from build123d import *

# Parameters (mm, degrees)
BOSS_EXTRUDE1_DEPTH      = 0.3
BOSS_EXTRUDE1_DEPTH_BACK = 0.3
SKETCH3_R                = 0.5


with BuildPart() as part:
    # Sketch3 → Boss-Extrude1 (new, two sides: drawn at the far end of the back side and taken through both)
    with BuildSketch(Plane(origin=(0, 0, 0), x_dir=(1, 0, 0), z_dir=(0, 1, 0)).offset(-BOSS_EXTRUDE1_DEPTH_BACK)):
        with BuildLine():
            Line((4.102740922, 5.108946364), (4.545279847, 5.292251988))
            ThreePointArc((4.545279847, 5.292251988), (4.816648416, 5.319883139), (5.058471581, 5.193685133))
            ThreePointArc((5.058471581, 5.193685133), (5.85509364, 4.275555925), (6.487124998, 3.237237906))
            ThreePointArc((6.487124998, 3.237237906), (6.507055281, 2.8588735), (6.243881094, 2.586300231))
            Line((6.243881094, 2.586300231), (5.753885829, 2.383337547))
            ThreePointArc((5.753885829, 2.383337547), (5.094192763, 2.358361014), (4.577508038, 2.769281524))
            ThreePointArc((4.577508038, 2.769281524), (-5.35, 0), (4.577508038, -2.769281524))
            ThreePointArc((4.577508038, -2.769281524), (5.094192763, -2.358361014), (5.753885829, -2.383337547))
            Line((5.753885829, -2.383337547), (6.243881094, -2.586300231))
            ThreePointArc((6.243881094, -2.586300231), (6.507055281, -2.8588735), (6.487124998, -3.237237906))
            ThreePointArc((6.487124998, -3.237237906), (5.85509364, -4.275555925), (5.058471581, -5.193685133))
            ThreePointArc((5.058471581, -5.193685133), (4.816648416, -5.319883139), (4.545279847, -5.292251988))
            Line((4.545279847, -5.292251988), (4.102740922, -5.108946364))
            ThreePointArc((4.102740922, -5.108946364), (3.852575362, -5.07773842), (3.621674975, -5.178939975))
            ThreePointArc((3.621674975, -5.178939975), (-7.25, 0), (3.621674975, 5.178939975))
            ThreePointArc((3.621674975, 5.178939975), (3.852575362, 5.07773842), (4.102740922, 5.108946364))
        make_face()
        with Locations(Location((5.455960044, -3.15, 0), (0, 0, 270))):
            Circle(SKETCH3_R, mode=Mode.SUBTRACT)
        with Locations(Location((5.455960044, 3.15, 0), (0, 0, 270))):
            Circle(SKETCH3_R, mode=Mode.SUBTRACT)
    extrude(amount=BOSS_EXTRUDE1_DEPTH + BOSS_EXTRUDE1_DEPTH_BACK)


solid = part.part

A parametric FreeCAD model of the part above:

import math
import FreeCAD as App
import Part
import Sketcher
Q = App.Units.Quantity

doc = App.newDocument("Part")
body = doc.addObject("PartDesign::Body", "Body")

# Sketch on XZ plane
sketch1 = body.newObject("Sketcher::SketchObject", "Sketch")
sketch1.AttachmentSupport = (doc.getObject("XZ_Plane"), [""])
sketch1.MapMode = "FlatFace"
sketch1.addGeometry([
    Part.LineSegment(App.Vector(4.55, -5.29, 0), App.Vector(4.1, -5.11, 0)),  # 0
    Part.ArcOfCircle(Part.Circle(App.Vector(3.92, -5.55, 0), App.Vector(0, 0, 1), 0.47), math.radians(67), math.radians(129)),  # 1
    Part.ArcOfCircle(Part.Circle(App.Vector(-0.58, 0, 0), App.Vector(0, 0, 1), 6.67), math.radians(51), math.radians(309)),  # 2
    Part.ArcOfCircle(Part.Circle(App.Vector(3.92, 5.55, 0), App.Vector(0, 0, 1), 0.47), math.radians(-129), math.radians(-67)),  # 3
    Part.LineSegment(App.Vector(4.1, 5.11, 0), App.Vector(4.55, 5.29, 0)),  # 4
    Part.ArcOfCircle(Part.Circle(App.Vector(4.73, 4.85, 0), App.Vector(0, 0, 1), 0.47), math.radians(46), math.radians(113)),  # 5
    Part.ArcOfCircle(Part.Circle(App.Vector(0, 0, 0), App.Vector(0, 0, 1), 7.25), math.radians(26.52), math.radians(45.76)),  # 6
    Part.ArcOfCircle(Part.Circle(App.Vector(6.06, 3.03, 0), App.Vector(0, 0, 1), 0.48), math.radians(-67), math.radians(27)),  # 7
    Part.LineSegment(App.Vector(6.24, 2.59, 0), App.Vector(5.75, 2.38, 0)),  # 8
    Part.ArcOfCircle(Part.Circle(App.Vector(5.39, 3.26, 0), App.Vector(0, 0, 1), 0.95), math.radians(-149), math.radians(-67)),  # 9
    Part.ArcOfCircle(Part.Circle(App.Vector(0, 0, 0), App.Vector(0, 0, 1), 5.35), math.radians(31), math.radians(329)),  # 10
    Part.ArcOfCircle(Part.Circle(App.Vector(5.39, -3.26, 0), App.Vector(0, 0, 1), 0.95), math.radians(67), math.radians(149)),  # 11
    Part.LineSegment(App.Vector(5.75, -2.38, 0), App.Vector(6.24, -2.59, 0)),  # 12
    Part.ArcOfCircle(Part.Circle(App.Vector(6.06, -3.03, 0), App.Vector(0, 0, 1), 0.48), math.radians(-27), math.radians(67)),  # 13
    Part.ArcOfCircle(Part.Circle(App.Vector(0, 0, 0), App.Vector(0, 0, 1), 7.25), math.radians(-45.76), math.radians(-26.52)),  # 14
    Part.ArcOfCircle(Part.Circle(App.Vector(4.73, -4.85, 0), App.Vector(0, 0, 1), 0.47), math.radians(-113), math.radians(-46)),  # 15
    Part.Circle(App.Vector(5.46, 3.15, 0), App.Vector(0, 0, 1), 0.5),  # 16
    Part.Circle(App.Vector(5.46, -3.15, 0), App.Vector(0, 0, 1), 0.5),  # 17
], False)
sketch1.addConstraint([
    Sketcher.Constraint("Tangent", 0, 2, 1, 1),
    Sketcher.Constraint("Tangent", 1, 2, 2, 2),
    Sketcher.Constraint("Tangent", 2, 1, 3, 1),
    Sketcher.Constraint("Tangent", 3, 2, 4, 1),
    Sketcher.Constraint("Tangent", 4, 2, 5, 2),
    Sketcher.Constraint("Tangent", 5, 1, 6, 2),
    Sketcher.Constraint("Tangent", 6, 1, 7, 2),
    Sketcher.Constraint("Tangent", 7, 1, 8, 1),
    Sketcher.Constraint("Tangent", 8, 2, 9, 2),
    Sketcher.Constraint("Tangent", 9, 1, 10, 1),
    Sketcher.Constraint("Tangent", 10, 2, 11, 2),
    Sketcher.Constraint("Tangent", 11, 1, 12, 1),
    Sketcher.Constraint("Tangent", 12, 2, 13, 2),
    Sketcher.Constraint("Tangent", 13, 1, 14, 2),
    Sketcher.Constraint("Tangent", 14, 1, 15, 2),
    Sketcher.Constraint("Tangent", 15, 1, 0, 1),
    Sketcher.Constraint("Coincident", 6, 3, -1, 1),
    Sketcher.Constraint("Coincident", 10, 3, -1, 1),
    Sketcher.Constraint("Coincident", 14, 3, -1, 1),
    Sketcher.Constraint("Equal", 1, 3),
    Sketcher.Constraint("Equal", 3, 5),
    Sketcher.Constraint("Equal", 5, 7),
    Sketcher.Constraint("Equal", 9, 11),
    Sketcher.Constraint("Equal", 7, 13),
    Sketcher.Constraint("Equal", 6, 14),
    Sketcher.Constraint("Equal", 13, 15),
    Sketcher.Constraint("Equal", 16, 17),
    Sketcher.Constraint("Symmetric", 1, 3, 3, 3, -1),
    Sketcher.Constraint("Symmetric", 16, 3, 17, 3, -1),
    Sketcher.Constraint("Symmetric", 8, 2, 11, 1, -1),
    Sketcher.Constraint("Parallel", 4, 8),
    Sketcher.Constraint("Parallel", 0, 12),
    Sketcher.Constraint("Diameter", 16, Q("1 mm")),
    Sketcher.Constraint("Radius", 6, Q("7.25 mm")),
    Sketcher.Constraint("Radius", 9, Q("0.95 mm")),
    Sketcher.Constraint("Radius", 10, Q("5.35 mm")),
    Sketcher.Constraint("Angle", 0, Q("157.5 deg")),
    Sketcher.Constraint("Radius", 1, Q("0.475 mm")),
    Sketcher.Constraint("DistanceY", -1, 1, 16, 3, Q("3.15 mm")),
    Sketcher.Constraint("Distance", 0, Q("0.479001 mm")),
    Sketcher.Constraint("Radius", 2, Q("6.669383 mm")),
    Sketcher.Constraint("DistanceY", -1, 1, 7, 1, Q("2.5863 mm")),
    Sketcher.Constraint("DistanceY", 1, 3, 5, 3, Q("10.401198 mm")),
    Sketcher.Constraint("DistanceX", -1, 1, 16, 3, Q("5.45596 mm")),
])
pad1 = body.newObject("PartDesign::Pad", "Pad")
pad1.Profile = sketch1
pad1.Type = "TwoLengths"
pad1.Length = 0.3
pad1.Length2 = 0.3
pad1.Reversed = True

doc.recompute()
